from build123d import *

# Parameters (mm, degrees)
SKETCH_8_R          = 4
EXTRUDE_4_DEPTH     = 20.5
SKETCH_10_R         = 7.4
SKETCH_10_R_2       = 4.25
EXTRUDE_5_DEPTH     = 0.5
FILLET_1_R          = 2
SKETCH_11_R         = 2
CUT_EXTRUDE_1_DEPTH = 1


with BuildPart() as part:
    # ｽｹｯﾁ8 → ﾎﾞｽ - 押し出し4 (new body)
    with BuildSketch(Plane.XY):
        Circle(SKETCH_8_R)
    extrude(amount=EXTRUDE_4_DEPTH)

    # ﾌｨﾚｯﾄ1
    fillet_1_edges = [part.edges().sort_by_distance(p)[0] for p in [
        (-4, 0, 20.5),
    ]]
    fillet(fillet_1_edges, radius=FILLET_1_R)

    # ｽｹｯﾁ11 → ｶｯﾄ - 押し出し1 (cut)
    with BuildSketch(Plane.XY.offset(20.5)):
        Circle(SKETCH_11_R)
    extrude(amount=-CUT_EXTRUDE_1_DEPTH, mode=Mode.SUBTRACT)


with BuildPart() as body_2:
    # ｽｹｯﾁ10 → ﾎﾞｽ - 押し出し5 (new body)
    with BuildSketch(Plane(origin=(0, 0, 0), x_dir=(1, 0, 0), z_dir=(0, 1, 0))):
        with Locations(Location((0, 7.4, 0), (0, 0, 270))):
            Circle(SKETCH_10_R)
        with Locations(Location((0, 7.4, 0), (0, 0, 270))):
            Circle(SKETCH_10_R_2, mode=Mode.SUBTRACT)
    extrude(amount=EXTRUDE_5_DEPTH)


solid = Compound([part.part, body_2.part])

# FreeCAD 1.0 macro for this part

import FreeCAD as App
import Part
import Sketcher

V = App.Vector


def edges_at(feature, points):
    """Names of the edges that pass closest to the given points."""
    edges = feature.Shape.Edges
    near = lambda p: min(range(len(edges)), key=lambda i: edges[i].distToShape(Part.Vertex(*p))[0])
    return sorted({f"Edge{near(p) + 1}" for p in points})

doc = App.newDocument("Part")
params = doc.addObject("Spreadsheet::Sheet", "Params")
for row, (alias, value) in enumerate([
    ("sketch1_diameter", "8 mm"),
    ("pad1_length", "20.5 mm"),
    ("fillet_radius", "2 mm"),
    ("sketch2_diameter", "4 mm"),
    ("pocket1_length", "1 mm"),
    ("sketch3_diameter", "14.8 mm"),
    ("sketch3_diameter2", "8.5 mm"),
    ("pad2_length", "0.5 mm"),
], start=1):
    params.set(f"A{row}", alias)
    params.set(f"B{row}", "=" + value)
    params.setAlias(f"B{row}", alias)

body = doc.addObject("PartDesign::Body", "Body")

sketch1 = body.newObject("Sketcher::SketchObject", "Sketch")
sketch1.AttachmentSupport = (doc.getObject("XY_Plane"), [""])
sketch1.MapMode = "FlatFace"
sketch1.addGeometry(Part.Circle(V(0, 0, 0), V(0, 0, 1), 4), False)
sketch1.addConstraint([
    Sketcher.Constraint("Coincident", 0, 3, -1, 1),
    Sketcher.Constraint("Diameter", 0, 8.0),
])
sketch1.setExpression("Constraints[1]", "Params.sketch1_diameter")
pad1 = body.newObject("PartDesign::Pad", "Pad")
pad1.Profile = sketch1
pad1.setExpression("Length", "Params.pad1_length")
doc.recompute()

fillet = body.newObject("PartDesign::Fillet", "Fillet")
fillet.Base = (pad1, edges_at(pad1, [(-4, 0, 20.5)]))
fillet.setExpression("Radius", "Params.fillet_radius")

sketch2 = body.newObject("Sketcher::SketchObject", "Sketch001")
sketch2.AttachmentSupport = (doc.getObject("XY_Plane"), [""])
sketch2.MapMode = "FlatFace"
sketch2.AttachmentOffset = App.Placement(V(0, 0, 20.5), App.Rotation())
sketch2.addGeometry(Part.Circle(V(0, 0, 0), V(0, 0, 1), 2), False)
sketch2.addConstraint([
    Sketcher.Constraint("Coincident", 0, 3, -1, 1),
    Sketcher.Constraint("Diameter", 0, 4.0),
])
sketch2.setExpression("Constraints[1]", "Params.sketch2_diameter")
pocket1 = body.newObject("PartDesign::Pocket", "Pocket")
pocket1.Profile = sketch2
pocket1.setExpression("Length", "Params.pocket1_length")
body2 = doc.addObject("PartDesign::Body", "Body001")

sketch3 = body2.newObject("Sketcher::SketchObject", "Sketch002")
sketch3.AttachmentSupport = (doc.getObject("XZ_Plane001"), [""])
sketch3.MapMode = "FlatFace"
sketch3.addGeometry([
    Part.Circle(V(0, -7.4, 0), V(0, 0, 1), 7.4),
    Part.Circle(V(0, -7.4, 0), V(0, 0, 1), 4.2),
], False)
sketch3.addConstraint([
    Sketcher.Constraint("Coincident", 1, 3, 0, 3),
    Sketcher.Constraint("PointOnObject", 0, 3, -2),
    Sketcher.Constraint("Diameter", 0, 14.8),
    Sketcher.Constraint("Diameter", 1, 8.5),
    Sketcher.Constraint("DistanceY", 0, 3, -1, 1, 7.4),
])
sketch3.setExpression("Constraints[2]", "Params.sketch3_diameter")
sketch3.setExpression("Constraints[3]", "Params.sketch3_diameter2")
pad2 = body2.newObject("PartDesign::Pad", "Pad001")
pad2.Profile = sketch3
pad2.setExpression("Length", "Params.pad2_length")
pad2.Reversed = True

doc.recompute()
